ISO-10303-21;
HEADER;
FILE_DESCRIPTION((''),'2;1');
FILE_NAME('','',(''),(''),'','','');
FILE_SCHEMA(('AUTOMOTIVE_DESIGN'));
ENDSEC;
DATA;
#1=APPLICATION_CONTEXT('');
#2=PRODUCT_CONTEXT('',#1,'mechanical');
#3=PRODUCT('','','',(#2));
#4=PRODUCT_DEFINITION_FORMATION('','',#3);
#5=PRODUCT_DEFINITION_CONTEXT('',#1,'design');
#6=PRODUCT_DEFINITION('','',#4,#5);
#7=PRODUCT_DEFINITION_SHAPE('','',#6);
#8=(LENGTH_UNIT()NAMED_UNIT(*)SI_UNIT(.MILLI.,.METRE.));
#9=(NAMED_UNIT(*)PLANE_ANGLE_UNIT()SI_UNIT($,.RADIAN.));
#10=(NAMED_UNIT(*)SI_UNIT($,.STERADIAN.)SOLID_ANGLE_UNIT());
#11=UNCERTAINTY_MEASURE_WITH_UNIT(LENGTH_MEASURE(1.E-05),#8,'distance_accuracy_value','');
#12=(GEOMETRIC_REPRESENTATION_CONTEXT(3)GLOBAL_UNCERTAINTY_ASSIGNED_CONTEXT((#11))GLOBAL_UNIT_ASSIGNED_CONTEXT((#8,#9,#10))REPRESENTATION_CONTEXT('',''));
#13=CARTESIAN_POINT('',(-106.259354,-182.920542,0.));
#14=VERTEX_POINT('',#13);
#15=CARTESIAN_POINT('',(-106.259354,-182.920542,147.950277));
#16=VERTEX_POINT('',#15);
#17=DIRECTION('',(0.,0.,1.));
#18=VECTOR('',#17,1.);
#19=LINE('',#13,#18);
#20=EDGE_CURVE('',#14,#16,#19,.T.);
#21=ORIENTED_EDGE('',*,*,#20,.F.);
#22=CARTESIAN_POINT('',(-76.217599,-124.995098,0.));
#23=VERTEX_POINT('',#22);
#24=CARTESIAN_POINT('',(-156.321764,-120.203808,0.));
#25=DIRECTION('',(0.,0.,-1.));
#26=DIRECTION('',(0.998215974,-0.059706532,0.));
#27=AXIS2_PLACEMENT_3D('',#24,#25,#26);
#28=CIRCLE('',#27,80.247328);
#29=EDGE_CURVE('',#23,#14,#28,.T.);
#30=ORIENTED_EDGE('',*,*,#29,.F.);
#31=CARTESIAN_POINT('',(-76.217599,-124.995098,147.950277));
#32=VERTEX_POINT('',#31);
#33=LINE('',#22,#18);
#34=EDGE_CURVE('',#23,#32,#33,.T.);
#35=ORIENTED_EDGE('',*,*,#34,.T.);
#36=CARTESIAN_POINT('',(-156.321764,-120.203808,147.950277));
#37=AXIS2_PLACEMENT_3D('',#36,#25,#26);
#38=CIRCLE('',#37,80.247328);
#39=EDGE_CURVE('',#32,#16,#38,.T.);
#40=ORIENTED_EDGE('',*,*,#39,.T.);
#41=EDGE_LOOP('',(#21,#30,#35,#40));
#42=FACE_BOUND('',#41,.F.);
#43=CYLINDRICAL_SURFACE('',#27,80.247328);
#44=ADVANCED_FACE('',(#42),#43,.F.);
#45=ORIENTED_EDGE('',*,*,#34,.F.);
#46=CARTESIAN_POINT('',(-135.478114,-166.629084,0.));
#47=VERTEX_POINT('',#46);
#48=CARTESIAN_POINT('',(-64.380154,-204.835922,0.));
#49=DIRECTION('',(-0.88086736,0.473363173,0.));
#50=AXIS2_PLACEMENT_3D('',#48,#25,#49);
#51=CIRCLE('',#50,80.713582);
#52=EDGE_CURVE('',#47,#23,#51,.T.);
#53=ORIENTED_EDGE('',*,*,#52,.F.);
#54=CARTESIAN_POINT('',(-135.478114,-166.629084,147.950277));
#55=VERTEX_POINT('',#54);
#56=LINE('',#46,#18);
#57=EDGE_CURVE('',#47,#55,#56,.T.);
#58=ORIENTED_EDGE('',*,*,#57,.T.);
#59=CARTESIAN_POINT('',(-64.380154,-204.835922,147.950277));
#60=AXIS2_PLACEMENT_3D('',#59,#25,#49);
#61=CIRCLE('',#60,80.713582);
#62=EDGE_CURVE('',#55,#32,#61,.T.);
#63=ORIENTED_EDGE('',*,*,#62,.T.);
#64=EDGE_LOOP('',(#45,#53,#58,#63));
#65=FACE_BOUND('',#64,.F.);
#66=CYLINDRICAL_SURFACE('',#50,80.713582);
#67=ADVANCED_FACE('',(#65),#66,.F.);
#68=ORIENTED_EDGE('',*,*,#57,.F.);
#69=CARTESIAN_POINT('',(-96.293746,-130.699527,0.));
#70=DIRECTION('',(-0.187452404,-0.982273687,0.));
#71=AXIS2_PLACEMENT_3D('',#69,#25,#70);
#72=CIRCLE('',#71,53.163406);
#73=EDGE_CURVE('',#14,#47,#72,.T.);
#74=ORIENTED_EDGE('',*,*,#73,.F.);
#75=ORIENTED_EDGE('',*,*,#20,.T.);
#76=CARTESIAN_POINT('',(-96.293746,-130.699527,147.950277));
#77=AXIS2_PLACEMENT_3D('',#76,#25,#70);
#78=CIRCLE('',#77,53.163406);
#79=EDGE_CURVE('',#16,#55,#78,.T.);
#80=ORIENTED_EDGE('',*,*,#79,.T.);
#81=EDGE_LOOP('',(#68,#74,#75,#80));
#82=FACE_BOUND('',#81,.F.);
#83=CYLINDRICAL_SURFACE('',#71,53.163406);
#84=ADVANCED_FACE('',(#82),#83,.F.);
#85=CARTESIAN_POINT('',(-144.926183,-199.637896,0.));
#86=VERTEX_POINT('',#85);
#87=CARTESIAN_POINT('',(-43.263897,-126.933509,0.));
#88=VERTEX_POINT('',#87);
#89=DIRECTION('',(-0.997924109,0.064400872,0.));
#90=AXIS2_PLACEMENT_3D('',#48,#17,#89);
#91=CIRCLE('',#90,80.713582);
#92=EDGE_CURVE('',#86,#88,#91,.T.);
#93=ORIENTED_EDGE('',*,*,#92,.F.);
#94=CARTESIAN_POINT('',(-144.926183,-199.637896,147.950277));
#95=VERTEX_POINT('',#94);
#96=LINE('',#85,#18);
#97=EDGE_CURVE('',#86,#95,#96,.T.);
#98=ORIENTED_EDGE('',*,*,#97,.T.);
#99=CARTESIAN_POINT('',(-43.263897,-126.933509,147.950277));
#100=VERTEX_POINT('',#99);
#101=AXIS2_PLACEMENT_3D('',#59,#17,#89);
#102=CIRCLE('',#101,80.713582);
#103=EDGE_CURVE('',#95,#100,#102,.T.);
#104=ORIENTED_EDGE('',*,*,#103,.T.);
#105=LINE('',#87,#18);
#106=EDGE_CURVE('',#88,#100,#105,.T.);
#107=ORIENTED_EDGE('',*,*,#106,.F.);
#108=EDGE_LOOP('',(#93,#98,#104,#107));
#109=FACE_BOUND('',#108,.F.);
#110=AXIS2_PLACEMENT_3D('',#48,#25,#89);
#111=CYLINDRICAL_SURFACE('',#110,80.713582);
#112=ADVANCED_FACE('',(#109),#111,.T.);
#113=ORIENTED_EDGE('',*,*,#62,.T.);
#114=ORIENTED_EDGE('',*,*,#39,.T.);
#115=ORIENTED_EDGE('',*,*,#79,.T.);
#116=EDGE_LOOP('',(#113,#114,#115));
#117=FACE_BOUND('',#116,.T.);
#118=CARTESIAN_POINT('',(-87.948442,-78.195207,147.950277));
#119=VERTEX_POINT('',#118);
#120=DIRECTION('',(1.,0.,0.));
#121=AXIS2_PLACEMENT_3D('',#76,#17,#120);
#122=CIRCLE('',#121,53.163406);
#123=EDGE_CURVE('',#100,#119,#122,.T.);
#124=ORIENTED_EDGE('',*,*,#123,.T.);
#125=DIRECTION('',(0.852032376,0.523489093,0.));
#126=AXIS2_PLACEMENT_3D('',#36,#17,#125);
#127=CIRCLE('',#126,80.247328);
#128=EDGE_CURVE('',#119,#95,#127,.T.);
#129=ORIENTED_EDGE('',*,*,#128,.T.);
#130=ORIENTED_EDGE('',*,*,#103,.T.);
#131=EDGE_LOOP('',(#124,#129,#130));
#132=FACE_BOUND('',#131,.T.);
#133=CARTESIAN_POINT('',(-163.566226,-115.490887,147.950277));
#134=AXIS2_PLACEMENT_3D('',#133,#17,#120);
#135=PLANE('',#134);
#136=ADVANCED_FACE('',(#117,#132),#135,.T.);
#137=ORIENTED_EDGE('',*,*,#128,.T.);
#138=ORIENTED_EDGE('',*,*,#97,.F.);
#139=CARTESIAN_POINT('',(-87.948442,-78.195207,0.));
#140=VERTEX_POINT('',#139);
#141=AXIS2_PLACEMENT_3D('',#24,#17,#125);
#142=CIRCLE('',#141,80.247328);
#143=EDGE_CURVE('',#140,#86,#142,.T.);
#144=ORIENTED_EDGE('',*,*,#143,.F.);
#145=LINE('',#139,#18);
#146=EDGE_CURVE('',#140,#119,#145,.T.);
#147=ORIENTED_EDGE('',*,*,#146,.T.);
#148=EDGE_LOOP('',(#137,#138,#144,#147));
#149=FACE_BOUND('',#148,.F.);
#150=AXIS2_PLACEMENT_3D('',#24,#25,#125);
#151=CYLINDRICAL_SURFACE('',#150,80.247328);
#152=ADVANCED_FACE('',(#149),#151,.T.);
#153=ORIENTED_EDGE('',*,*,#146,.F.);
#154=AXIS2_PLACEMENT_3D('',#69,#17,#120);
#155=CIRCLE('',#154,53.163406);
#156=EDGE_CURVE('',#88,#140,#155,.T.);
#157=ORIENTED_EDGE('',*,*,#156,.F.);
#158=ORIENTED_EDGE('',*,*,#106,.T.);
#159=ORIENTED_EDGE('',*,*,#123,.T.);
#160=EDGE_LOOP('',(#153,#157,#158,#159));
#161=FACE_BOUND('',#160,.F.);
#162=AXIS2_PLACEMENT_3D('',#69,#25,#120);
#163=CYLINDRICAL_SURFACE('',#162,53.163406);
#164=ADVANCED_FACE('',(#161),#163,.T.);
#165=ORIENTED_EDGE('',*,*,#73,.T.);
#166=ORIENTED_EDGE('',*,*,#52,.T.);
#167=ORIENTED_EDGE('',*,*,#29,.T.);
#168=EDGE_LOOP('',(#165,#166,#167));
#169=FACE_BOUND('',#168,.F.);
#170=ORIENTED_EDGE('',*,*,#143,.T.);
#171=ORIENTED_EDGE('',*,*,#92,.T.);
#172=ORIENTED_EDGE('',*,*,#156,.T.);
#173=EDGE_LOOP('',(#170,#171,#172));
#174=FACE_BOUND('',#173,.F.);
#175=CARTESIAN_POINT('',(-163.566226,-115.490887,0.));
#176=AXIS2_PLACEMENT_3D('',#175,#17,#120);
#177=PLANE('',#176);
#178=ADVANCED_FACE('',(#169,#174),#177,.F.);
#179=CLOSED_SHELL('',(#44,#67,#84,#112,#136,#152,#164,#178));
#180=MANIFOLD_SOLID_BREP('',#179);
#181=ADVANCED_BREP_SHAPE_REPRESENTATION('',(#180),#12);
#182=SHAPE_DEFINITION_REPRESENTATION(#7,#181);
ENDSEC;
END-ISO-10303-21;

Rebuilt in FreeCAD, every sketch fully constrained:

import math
import FreeCAD as App
import Part
import Sketcher

doc = App.newDocument("Part")
params = doc.addObject("Spreadsheet::Sheet", "Params")
for row, (alias, value) in enumerate([
    ("pad1_length", "147.950277 mm"),
], start=1):
    params.set(f"A{row}", alias)
    params.set(f"B{row}", "=" + value)
    params.setAlias(f"B{row}", alias)

body = doc.addObject("PartDesign::Body", "Body")

# Sketch on XY plane
sketch1 = doc.addObject("Sketcher::SketchObject", "Sketch")
body.addObject(sketch1)
sketch1.AttachmentSupport = (doc.XY_Plane, [""])
sketch1.MapMode = "FlatFace"
sketch1.addGeometry([
    Part.ArcOfCircle(Part.Circle(App.Vector(-156.321764, -120.203808, 0), App.Vector(0, 0, 1), 80.247328), math.radians(31.566585), math.radians(278.163926)),  # 0
    Part.ArcOfCircle(Part.Circle(App.Vector(-64.380154, -204.835922, 0), App.Vector(0, 0, 1), 80.713582), math.radians(176.307546), math.radians(434.833813)),  # 1
    Part.ArcOfCircle(Part.Circle(App.Vector(-96.293746, -130.699527, 0), App.Vector(0, 0, 1), 53.163406), math.radians(4.062152), math.radians(80.968667)),  # 2
    Part.ArcOfCircle(Part.Circle(App.Vector(-156.321764, -120.203808, 0), App.Vector(0, 0, 1), 80.247328), math.radians(-51.402065), math.radians(-3.422968)),  # 3
    Part.ArcOfCircle(Part.Circle(App.Vector(-96.293746, -130.699527, 0), App.Vector(0, 0, 1), 53.163406), math.radians(-137.481169), math.radians(-100.804147)),  # 4
    Part.ArcOfCircle(Part.Circle(App.Vector(-64.380154, -204.835922, 0), App.Vector(0, 0, 1), 80.713582), math.radians(98.433412), math.radians(151.74717)),  # 5
], False)
sketch1.addConstraint([
    Sketcher.Constraint("Coincident", 0, 2, 1, 1),
    Sketcher.Constraint("Coincident", 1, 2, 2, 1),
    Sketcher.Constraint("Coincident", 2, 2, 0, 1),
    Sketcher.Constraint("Coincident", 3, 1, 4, 2),
    Sketcher.Constraint("Coincident", 4, 1, 5, 2),
    Sketcher.Constraint("Coincident", 5, 1, 3, 2),
    Sketcher.Constraint("Coincident", 3, 3, 0, 3),
    Sketcher.Constraint("Coincident", 4, 3, 2, 3),
    Sketcher.Constraint("Coincident", 5, 3, 1, 3),
    Sketcher.Constraint("Equal", 0, 3),
    Sketcher.Constraint("Equal", 2, 4),
    Sketcher.Constraint("Equal", 1, 5),
    Sketcher.Constraint("Radius", 0, 80.247328),
    Sketcher.Constraint("Radius", 1, 80.713582),
    Sketcher.Constraint("Radius", 2, 53.163406),
    Sketcher.Constraint("DistanceX", 5, 1, -1, 1, 76.217599),
    Sketcher.Constraint("DistanceY", 1, 2, 0, 3, 6.729701),
    Sketcher.Constraint("DistanceY", 1, 2, 2, 2, 48.738302),
    Sketcher.Constraint("DistanceX", 3, 1, 1, 3, 41.8792),
    Sketcher.Constraint("DistanceY", 1, 3, -1, 1, 204.835922),
    Sketcher.Constraint("DistanceY", 1, 2, -1, 1, 126.933509),
])
pad1 = doc.addObject("PartDesign::Pad", "Pad")
body.addObject(pad1)
pad1.Profile = sketch1
pad1.setExpression("Length", "Params.pad1_length")

doc.recompute()
